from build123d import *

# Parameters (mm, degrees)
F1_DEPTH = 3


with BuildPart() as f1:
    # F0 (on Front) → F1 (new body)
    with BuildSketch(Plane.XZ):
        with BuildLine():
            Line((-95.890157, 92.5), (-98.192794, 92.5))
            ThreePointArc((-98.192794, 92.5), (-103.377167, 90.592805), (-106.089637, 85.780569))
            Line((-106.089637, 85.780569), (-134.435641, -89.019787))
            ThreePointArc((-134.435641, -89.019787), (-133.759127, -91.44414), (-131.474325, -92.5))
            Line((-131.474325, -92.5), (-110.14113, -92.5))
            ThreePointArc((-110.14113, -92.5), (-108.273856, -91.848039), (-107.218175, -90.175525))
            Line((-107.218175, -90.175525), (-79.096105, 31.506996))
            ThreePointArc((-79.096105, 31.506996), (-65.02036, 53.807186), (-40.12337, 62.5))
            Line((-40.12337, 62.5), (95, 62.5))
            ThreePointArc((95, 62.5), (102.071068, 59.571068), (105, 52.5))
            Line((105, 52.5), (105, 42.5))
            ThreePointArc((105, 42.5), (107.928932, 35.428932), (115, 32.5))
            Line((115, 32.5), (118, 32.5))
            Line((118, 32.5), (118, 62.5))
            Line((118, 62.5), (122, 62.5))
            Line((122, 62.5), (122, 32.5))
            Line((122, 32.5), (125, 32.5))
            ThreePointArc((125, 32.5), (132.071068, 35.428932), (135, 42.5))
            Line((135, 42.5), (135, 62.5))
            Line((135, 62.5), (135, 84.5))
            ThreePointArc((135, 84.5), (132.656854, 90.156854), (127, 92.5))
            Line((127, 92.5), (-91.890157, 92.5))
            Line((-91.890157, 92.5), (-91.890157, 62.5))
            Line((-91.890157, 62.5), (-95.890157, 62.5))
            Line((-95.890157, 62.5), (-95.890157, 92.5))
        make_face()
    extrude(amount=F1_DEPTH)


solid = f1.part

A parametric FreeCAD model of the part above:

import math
import FreeCAD as App
import Part
import Sketcher
from FreeCAD import Vector

doc = App.newDocument("Part")
params = doc.addObject("Spreadsheet::Sheet", "Params")
for row, (alias, value) in enumerate([
    ("sketch1_radius", "7.999999 mm"),
    ("sketch1_radius2", "2.999999 mm"),
    ("sketch1_radius3", "40.000001 mm"),
    ("sketch1_radius4", "9.999999 mm"),
    ("sketch1_width", "3 mm"),
    ("pad1_length", "3 mm"),
], start=1):
    params.set(f"A{row}", alias)
    params.set(f"B{row}", "=" + value)
    params.setAlias(f"B{row}", alias)

body = doc.addObject("PartDesign::Body", "Body")

sketch1 = doc.addObject("Sketcher::SketchObject", "Sketch")
body.addObject(sketch1)
sketch1.AttachmentSupport = (doc.XZ_Plane, [""])
sketch1.MapMode = "FlatFace"
sketch1.addGeometry([
    Part.LineSegment(Vector(-95.890157, 92.5, 0), Vector(-98.192794, 92.5, 0)),
    Part.ArcOfCircle(Part.Circle(Vector(-98.192794, 84.500001, 0), Vector(0, 0, 1), 7.999999), math.radians(90), math.radians(170.788982)),
    Part.LineSegment(Vector(-106.089637, 85.780569, 0), Vector(-134.435641, -89.019787, 0)),
    Part.ArcOfCircle(Part.Circle(Vector(-131.474326, -89.500001, 0), Vector(0, 0, 1), 2.999999), math.radians(170.788963), math.radians(270.00001)),
    Part.LineSegment(Vector(-131.474325, -92.5, 0), Vector(-110.14113, -92.5, 0)),
    Part.ArcOfCircle(Part.Circle(Vector(-110.14113, -89.5, 0), Vector(0, 0, 1), 3), math.radians(-89.999994), math.radians(-13.013175)),
    Part.LineSegment(Vector(-107.218175, -90.175525, 0), Vector(-79.096105, 31.506996, 0)),
    Part.ArcOfCircle(Part.Circle(Vector(-40.12337, 22.499999, 0), Vector(0, 0, 1), 40.000001), math.radians(90), math.radians(166.986836)),
    Part.LineSegment(Vector(-40.12337, 62.5, 0), Vector(95, 62.5, 0)),
    Part.ArcOfCircle(Part.Circle(Vector(95.000001, 52.500001, 0), Vector(0, 0, 1), 9.999999), math.radians(-0.000004), math.radians(90.000004)),
    Part.LineSegment(Vector(105, 52.5, 0), Vector(105, 42.5, 0)),
    Part.ArcOfCircle(Part.Circle(Vector(114.999999, 42.499999, 0), Vector(0, 0, 1), 9.999999), math.radians(179.999996), math.radians(270.000004)),
    Part.LineSegment(Vector(115, 32.5, 0), Vector(118, 32.5, 0)),
    Part.LineSegment(Vector(118, 32.5, 0), Vector(118, 62.5, 0)),
    Part.LineSegment(Vector(118, 62.5, 0), Vector(122, 62.5, 0)),
    Part.LineSegment(Vector(122, 62.5, 0), Vector(122, 32.5, 0)),
    Part.LineSegment(Vector(122, 32.5, 0), Vector(125, 32.5, 0)),
    Part.ArcOfCircle(Part.Circle(Vector(125.000001, 42.499999, 0), Vector(0, 0, 1), 9.999999), math.radians(-90.000004), math.radians(0.000004)),
    Part.LineSegment(Vector(135, 42.5, 0), Vector(135, 84.5, 0)),
    Part.ArcOfCircle(Part.Circle(Vector(126.999999, 84.499999, 0), Vector(0, 0, 1), 8.000001), math.radians(0.000006), math.radians(89.999994)),
    Part.LineSegment(Vector(127, 92.5, 0), Vector(-91.890157, 92.5, 0)),
    Part.LineSegment(Vector(-91.890157, 92.5, 0), Vector(-91.890157, 62.5, 0)),
    Part.LineSegment(Vector(-91.890157, 62.5, 0), Vector(-95.890157, 62.5, 0)),
    Part.LineSegment(Vector(-95.890157, 62.5, 0), Vector(-95.890157, 92.5, 0)),
], False)
sketch1.addConstraint([
    Sketcher.Constraint("Tangent", 0, 2, 1, 1),
    Sketcher.Constraint("Tangent", 1, 2, 2, 1),
    Sketcher.Constraint("Tangent", 2, 2, 3, 1),
    Sketcher.Constraint("Tangent", 3, 2, 4, 1),
    Sketcher.Constraint("Tangent", 4, 2, 5, 1),
    Sketcher.Constraint("Tangent", 5, 2, 6, 1),
    Sketcher.Constraint("Tangent", 6, 2, 7, 2),
    Sketcher.Constraint("Tangent", 7, 1, 8, 1),
    Sketcher.Constraint("Tangent", 8, 2, 9, 2),
    Sketcher.Constraint("Tangent", 9, 1, 10, 1),
    Sketcher.Constraint("Tangent", 10, 2, 11, 1),
    Sketcher.Constraint("Tangent", 11, 2, 12, 1),
    Sketcher.Constraint("Coincident", 12, 2, 13, 1),
    Sketcher.Constraint("Coincident", 13, 2, 14, 1),
    Sketcher.Constraint("Coincident", 14, 2, 15, 1),
    Sketcher.Constraint("Coincident", 15, 2, 16, 1),
    Sketcher.Constraint("Tangent", 16, 2, 17, 1),
    Sketcher.Constraint("Tangent", 17, 2, 18, 1),
    Sketcher.Constraint("Tangent", 18, 2, 19, 1),
    Sketcher.Constraint("Tangent", 19, 2, 20, 1),
    Sketcher.Constraint("Coincident", 20, 2, 21, 1),
    Sketcher.Constraint("Coincident", 21, 2, 22, 1),
    Sketcher.Constraint("Coincident", 22, 2, 23, 1),
    Sketcher.Constraint("Coincident", 23, 2, 0, 1),
    Sketcher.Constraint("Horizontal", 0),
    Sketcher.Constraint("Horizontal", 4),
    Sketcher.Constraint("Horizontal", 8),
    Sketcher.Constraint("Vertical", 10),
    Sketcher.Constraint("Horizontal", 12),
    Sketcher.Constraint("Vertical", 13),
    Sketcher.Constraint("Horizontal", 14),
    Sketcher.Constraint("Vertical", 15),
    Sketcher.Constraint("Horizontal", 16),
    Sketcher.Constraint("Vertical", 18),
    Sketcher.Constraint("Horizontal", 20),
    Sketcher.Constraint("Vertical", 21),
    Sketcher.Constraint("Horizontal", 22),
    Sketcher.Constraint("Vertical", 23),
    Sketcher.Constraint("Equal", 3, 5),
    Sketcher.Constraint("Equal", 9, 11),
    Sketcher.Constraint("Equal", 11, 17),
    Sketcher.Constraint("Equal", 1, 19),
    Sketcher.Constraint("Horizontal", 11, 3, 17, 3),
    Sketcher.Constraint("Horizontal", 1, 3, 19, 3),
    Sketcher.Constraint("Horizontal", 8, 2, 13, 2),
    Sketcher.Constraint("Horizontal", 14, 2, 21, 2),
    Sketcher.Constraint("Equal", 12, 16),
    Sketcher.Constraint("Equal", 14, 22),
    Sketcher.Constraint("Equal", 15, 21),
    Sketcher.Constraint("Radius", 1, 7.999999),
    Sketcher.Constraint("Radius", 3, 2.999999),
    Sketcher.Constraint("Radius", 7, 40.000001),
    Sketcher.Constraint("Radius", 9, 9.999999),
    Sketcher.Constraint("DistanceX", 12, 1, 12, 2, 3.0),
    Sketcher.Constraint("DistanceX", 14, 1, 14, 2, 4.0),
    Sketcher.Constraint("DistanceY", 10, 2, 10, 1, 10.0),
    Sketcher.Constraint("DistanceX", -1, 1, 9, 3, 95.000001),
    Sketcher.Constraint("DistanceY", 3, 3, 1, 3, 174.000002),
    Sketcher.Constraint("DistanceY", -1, 1, 1, 3, 84.500001),
    Sketcher.Constraint("Distance", 6, 124.889898),
    Sketcher.Constraint("DistanceX", 8, 1, 8, 2, 135.12337),
    Sketcher.Constraint("DistanceX", 0, 2, 0, 1, 2.302637),
    Sketcher.Constraint("DistanceX", 4, 1, 4, 2, 21.333195),
    Sketcher.Constraint("DistanceX", 20, 2, 20, 1, 218.890157),
])
sketch1.setExpression("Constraints[49]", "Params.sketch1_radius")
sketch1.setExpression("Constraints[50]", "Params.sketch1_radius2")
sketch1.setExpression("Constraints[51]", "Params.sketch1_radius3")
sketch1.setExpression("Constraints[52]", "Params.sketch1_radius4")
sketch1.setExpression("Constraints[53]", "Params.sketch1_width")
pad1 = doc.addObject("PartDesign::Pad", "Pad")
body.addObject(pad1)
pad1.Profile = sketch1
pad1.setExpression("Length", "Params.pad1_length")

doc.recompute()
